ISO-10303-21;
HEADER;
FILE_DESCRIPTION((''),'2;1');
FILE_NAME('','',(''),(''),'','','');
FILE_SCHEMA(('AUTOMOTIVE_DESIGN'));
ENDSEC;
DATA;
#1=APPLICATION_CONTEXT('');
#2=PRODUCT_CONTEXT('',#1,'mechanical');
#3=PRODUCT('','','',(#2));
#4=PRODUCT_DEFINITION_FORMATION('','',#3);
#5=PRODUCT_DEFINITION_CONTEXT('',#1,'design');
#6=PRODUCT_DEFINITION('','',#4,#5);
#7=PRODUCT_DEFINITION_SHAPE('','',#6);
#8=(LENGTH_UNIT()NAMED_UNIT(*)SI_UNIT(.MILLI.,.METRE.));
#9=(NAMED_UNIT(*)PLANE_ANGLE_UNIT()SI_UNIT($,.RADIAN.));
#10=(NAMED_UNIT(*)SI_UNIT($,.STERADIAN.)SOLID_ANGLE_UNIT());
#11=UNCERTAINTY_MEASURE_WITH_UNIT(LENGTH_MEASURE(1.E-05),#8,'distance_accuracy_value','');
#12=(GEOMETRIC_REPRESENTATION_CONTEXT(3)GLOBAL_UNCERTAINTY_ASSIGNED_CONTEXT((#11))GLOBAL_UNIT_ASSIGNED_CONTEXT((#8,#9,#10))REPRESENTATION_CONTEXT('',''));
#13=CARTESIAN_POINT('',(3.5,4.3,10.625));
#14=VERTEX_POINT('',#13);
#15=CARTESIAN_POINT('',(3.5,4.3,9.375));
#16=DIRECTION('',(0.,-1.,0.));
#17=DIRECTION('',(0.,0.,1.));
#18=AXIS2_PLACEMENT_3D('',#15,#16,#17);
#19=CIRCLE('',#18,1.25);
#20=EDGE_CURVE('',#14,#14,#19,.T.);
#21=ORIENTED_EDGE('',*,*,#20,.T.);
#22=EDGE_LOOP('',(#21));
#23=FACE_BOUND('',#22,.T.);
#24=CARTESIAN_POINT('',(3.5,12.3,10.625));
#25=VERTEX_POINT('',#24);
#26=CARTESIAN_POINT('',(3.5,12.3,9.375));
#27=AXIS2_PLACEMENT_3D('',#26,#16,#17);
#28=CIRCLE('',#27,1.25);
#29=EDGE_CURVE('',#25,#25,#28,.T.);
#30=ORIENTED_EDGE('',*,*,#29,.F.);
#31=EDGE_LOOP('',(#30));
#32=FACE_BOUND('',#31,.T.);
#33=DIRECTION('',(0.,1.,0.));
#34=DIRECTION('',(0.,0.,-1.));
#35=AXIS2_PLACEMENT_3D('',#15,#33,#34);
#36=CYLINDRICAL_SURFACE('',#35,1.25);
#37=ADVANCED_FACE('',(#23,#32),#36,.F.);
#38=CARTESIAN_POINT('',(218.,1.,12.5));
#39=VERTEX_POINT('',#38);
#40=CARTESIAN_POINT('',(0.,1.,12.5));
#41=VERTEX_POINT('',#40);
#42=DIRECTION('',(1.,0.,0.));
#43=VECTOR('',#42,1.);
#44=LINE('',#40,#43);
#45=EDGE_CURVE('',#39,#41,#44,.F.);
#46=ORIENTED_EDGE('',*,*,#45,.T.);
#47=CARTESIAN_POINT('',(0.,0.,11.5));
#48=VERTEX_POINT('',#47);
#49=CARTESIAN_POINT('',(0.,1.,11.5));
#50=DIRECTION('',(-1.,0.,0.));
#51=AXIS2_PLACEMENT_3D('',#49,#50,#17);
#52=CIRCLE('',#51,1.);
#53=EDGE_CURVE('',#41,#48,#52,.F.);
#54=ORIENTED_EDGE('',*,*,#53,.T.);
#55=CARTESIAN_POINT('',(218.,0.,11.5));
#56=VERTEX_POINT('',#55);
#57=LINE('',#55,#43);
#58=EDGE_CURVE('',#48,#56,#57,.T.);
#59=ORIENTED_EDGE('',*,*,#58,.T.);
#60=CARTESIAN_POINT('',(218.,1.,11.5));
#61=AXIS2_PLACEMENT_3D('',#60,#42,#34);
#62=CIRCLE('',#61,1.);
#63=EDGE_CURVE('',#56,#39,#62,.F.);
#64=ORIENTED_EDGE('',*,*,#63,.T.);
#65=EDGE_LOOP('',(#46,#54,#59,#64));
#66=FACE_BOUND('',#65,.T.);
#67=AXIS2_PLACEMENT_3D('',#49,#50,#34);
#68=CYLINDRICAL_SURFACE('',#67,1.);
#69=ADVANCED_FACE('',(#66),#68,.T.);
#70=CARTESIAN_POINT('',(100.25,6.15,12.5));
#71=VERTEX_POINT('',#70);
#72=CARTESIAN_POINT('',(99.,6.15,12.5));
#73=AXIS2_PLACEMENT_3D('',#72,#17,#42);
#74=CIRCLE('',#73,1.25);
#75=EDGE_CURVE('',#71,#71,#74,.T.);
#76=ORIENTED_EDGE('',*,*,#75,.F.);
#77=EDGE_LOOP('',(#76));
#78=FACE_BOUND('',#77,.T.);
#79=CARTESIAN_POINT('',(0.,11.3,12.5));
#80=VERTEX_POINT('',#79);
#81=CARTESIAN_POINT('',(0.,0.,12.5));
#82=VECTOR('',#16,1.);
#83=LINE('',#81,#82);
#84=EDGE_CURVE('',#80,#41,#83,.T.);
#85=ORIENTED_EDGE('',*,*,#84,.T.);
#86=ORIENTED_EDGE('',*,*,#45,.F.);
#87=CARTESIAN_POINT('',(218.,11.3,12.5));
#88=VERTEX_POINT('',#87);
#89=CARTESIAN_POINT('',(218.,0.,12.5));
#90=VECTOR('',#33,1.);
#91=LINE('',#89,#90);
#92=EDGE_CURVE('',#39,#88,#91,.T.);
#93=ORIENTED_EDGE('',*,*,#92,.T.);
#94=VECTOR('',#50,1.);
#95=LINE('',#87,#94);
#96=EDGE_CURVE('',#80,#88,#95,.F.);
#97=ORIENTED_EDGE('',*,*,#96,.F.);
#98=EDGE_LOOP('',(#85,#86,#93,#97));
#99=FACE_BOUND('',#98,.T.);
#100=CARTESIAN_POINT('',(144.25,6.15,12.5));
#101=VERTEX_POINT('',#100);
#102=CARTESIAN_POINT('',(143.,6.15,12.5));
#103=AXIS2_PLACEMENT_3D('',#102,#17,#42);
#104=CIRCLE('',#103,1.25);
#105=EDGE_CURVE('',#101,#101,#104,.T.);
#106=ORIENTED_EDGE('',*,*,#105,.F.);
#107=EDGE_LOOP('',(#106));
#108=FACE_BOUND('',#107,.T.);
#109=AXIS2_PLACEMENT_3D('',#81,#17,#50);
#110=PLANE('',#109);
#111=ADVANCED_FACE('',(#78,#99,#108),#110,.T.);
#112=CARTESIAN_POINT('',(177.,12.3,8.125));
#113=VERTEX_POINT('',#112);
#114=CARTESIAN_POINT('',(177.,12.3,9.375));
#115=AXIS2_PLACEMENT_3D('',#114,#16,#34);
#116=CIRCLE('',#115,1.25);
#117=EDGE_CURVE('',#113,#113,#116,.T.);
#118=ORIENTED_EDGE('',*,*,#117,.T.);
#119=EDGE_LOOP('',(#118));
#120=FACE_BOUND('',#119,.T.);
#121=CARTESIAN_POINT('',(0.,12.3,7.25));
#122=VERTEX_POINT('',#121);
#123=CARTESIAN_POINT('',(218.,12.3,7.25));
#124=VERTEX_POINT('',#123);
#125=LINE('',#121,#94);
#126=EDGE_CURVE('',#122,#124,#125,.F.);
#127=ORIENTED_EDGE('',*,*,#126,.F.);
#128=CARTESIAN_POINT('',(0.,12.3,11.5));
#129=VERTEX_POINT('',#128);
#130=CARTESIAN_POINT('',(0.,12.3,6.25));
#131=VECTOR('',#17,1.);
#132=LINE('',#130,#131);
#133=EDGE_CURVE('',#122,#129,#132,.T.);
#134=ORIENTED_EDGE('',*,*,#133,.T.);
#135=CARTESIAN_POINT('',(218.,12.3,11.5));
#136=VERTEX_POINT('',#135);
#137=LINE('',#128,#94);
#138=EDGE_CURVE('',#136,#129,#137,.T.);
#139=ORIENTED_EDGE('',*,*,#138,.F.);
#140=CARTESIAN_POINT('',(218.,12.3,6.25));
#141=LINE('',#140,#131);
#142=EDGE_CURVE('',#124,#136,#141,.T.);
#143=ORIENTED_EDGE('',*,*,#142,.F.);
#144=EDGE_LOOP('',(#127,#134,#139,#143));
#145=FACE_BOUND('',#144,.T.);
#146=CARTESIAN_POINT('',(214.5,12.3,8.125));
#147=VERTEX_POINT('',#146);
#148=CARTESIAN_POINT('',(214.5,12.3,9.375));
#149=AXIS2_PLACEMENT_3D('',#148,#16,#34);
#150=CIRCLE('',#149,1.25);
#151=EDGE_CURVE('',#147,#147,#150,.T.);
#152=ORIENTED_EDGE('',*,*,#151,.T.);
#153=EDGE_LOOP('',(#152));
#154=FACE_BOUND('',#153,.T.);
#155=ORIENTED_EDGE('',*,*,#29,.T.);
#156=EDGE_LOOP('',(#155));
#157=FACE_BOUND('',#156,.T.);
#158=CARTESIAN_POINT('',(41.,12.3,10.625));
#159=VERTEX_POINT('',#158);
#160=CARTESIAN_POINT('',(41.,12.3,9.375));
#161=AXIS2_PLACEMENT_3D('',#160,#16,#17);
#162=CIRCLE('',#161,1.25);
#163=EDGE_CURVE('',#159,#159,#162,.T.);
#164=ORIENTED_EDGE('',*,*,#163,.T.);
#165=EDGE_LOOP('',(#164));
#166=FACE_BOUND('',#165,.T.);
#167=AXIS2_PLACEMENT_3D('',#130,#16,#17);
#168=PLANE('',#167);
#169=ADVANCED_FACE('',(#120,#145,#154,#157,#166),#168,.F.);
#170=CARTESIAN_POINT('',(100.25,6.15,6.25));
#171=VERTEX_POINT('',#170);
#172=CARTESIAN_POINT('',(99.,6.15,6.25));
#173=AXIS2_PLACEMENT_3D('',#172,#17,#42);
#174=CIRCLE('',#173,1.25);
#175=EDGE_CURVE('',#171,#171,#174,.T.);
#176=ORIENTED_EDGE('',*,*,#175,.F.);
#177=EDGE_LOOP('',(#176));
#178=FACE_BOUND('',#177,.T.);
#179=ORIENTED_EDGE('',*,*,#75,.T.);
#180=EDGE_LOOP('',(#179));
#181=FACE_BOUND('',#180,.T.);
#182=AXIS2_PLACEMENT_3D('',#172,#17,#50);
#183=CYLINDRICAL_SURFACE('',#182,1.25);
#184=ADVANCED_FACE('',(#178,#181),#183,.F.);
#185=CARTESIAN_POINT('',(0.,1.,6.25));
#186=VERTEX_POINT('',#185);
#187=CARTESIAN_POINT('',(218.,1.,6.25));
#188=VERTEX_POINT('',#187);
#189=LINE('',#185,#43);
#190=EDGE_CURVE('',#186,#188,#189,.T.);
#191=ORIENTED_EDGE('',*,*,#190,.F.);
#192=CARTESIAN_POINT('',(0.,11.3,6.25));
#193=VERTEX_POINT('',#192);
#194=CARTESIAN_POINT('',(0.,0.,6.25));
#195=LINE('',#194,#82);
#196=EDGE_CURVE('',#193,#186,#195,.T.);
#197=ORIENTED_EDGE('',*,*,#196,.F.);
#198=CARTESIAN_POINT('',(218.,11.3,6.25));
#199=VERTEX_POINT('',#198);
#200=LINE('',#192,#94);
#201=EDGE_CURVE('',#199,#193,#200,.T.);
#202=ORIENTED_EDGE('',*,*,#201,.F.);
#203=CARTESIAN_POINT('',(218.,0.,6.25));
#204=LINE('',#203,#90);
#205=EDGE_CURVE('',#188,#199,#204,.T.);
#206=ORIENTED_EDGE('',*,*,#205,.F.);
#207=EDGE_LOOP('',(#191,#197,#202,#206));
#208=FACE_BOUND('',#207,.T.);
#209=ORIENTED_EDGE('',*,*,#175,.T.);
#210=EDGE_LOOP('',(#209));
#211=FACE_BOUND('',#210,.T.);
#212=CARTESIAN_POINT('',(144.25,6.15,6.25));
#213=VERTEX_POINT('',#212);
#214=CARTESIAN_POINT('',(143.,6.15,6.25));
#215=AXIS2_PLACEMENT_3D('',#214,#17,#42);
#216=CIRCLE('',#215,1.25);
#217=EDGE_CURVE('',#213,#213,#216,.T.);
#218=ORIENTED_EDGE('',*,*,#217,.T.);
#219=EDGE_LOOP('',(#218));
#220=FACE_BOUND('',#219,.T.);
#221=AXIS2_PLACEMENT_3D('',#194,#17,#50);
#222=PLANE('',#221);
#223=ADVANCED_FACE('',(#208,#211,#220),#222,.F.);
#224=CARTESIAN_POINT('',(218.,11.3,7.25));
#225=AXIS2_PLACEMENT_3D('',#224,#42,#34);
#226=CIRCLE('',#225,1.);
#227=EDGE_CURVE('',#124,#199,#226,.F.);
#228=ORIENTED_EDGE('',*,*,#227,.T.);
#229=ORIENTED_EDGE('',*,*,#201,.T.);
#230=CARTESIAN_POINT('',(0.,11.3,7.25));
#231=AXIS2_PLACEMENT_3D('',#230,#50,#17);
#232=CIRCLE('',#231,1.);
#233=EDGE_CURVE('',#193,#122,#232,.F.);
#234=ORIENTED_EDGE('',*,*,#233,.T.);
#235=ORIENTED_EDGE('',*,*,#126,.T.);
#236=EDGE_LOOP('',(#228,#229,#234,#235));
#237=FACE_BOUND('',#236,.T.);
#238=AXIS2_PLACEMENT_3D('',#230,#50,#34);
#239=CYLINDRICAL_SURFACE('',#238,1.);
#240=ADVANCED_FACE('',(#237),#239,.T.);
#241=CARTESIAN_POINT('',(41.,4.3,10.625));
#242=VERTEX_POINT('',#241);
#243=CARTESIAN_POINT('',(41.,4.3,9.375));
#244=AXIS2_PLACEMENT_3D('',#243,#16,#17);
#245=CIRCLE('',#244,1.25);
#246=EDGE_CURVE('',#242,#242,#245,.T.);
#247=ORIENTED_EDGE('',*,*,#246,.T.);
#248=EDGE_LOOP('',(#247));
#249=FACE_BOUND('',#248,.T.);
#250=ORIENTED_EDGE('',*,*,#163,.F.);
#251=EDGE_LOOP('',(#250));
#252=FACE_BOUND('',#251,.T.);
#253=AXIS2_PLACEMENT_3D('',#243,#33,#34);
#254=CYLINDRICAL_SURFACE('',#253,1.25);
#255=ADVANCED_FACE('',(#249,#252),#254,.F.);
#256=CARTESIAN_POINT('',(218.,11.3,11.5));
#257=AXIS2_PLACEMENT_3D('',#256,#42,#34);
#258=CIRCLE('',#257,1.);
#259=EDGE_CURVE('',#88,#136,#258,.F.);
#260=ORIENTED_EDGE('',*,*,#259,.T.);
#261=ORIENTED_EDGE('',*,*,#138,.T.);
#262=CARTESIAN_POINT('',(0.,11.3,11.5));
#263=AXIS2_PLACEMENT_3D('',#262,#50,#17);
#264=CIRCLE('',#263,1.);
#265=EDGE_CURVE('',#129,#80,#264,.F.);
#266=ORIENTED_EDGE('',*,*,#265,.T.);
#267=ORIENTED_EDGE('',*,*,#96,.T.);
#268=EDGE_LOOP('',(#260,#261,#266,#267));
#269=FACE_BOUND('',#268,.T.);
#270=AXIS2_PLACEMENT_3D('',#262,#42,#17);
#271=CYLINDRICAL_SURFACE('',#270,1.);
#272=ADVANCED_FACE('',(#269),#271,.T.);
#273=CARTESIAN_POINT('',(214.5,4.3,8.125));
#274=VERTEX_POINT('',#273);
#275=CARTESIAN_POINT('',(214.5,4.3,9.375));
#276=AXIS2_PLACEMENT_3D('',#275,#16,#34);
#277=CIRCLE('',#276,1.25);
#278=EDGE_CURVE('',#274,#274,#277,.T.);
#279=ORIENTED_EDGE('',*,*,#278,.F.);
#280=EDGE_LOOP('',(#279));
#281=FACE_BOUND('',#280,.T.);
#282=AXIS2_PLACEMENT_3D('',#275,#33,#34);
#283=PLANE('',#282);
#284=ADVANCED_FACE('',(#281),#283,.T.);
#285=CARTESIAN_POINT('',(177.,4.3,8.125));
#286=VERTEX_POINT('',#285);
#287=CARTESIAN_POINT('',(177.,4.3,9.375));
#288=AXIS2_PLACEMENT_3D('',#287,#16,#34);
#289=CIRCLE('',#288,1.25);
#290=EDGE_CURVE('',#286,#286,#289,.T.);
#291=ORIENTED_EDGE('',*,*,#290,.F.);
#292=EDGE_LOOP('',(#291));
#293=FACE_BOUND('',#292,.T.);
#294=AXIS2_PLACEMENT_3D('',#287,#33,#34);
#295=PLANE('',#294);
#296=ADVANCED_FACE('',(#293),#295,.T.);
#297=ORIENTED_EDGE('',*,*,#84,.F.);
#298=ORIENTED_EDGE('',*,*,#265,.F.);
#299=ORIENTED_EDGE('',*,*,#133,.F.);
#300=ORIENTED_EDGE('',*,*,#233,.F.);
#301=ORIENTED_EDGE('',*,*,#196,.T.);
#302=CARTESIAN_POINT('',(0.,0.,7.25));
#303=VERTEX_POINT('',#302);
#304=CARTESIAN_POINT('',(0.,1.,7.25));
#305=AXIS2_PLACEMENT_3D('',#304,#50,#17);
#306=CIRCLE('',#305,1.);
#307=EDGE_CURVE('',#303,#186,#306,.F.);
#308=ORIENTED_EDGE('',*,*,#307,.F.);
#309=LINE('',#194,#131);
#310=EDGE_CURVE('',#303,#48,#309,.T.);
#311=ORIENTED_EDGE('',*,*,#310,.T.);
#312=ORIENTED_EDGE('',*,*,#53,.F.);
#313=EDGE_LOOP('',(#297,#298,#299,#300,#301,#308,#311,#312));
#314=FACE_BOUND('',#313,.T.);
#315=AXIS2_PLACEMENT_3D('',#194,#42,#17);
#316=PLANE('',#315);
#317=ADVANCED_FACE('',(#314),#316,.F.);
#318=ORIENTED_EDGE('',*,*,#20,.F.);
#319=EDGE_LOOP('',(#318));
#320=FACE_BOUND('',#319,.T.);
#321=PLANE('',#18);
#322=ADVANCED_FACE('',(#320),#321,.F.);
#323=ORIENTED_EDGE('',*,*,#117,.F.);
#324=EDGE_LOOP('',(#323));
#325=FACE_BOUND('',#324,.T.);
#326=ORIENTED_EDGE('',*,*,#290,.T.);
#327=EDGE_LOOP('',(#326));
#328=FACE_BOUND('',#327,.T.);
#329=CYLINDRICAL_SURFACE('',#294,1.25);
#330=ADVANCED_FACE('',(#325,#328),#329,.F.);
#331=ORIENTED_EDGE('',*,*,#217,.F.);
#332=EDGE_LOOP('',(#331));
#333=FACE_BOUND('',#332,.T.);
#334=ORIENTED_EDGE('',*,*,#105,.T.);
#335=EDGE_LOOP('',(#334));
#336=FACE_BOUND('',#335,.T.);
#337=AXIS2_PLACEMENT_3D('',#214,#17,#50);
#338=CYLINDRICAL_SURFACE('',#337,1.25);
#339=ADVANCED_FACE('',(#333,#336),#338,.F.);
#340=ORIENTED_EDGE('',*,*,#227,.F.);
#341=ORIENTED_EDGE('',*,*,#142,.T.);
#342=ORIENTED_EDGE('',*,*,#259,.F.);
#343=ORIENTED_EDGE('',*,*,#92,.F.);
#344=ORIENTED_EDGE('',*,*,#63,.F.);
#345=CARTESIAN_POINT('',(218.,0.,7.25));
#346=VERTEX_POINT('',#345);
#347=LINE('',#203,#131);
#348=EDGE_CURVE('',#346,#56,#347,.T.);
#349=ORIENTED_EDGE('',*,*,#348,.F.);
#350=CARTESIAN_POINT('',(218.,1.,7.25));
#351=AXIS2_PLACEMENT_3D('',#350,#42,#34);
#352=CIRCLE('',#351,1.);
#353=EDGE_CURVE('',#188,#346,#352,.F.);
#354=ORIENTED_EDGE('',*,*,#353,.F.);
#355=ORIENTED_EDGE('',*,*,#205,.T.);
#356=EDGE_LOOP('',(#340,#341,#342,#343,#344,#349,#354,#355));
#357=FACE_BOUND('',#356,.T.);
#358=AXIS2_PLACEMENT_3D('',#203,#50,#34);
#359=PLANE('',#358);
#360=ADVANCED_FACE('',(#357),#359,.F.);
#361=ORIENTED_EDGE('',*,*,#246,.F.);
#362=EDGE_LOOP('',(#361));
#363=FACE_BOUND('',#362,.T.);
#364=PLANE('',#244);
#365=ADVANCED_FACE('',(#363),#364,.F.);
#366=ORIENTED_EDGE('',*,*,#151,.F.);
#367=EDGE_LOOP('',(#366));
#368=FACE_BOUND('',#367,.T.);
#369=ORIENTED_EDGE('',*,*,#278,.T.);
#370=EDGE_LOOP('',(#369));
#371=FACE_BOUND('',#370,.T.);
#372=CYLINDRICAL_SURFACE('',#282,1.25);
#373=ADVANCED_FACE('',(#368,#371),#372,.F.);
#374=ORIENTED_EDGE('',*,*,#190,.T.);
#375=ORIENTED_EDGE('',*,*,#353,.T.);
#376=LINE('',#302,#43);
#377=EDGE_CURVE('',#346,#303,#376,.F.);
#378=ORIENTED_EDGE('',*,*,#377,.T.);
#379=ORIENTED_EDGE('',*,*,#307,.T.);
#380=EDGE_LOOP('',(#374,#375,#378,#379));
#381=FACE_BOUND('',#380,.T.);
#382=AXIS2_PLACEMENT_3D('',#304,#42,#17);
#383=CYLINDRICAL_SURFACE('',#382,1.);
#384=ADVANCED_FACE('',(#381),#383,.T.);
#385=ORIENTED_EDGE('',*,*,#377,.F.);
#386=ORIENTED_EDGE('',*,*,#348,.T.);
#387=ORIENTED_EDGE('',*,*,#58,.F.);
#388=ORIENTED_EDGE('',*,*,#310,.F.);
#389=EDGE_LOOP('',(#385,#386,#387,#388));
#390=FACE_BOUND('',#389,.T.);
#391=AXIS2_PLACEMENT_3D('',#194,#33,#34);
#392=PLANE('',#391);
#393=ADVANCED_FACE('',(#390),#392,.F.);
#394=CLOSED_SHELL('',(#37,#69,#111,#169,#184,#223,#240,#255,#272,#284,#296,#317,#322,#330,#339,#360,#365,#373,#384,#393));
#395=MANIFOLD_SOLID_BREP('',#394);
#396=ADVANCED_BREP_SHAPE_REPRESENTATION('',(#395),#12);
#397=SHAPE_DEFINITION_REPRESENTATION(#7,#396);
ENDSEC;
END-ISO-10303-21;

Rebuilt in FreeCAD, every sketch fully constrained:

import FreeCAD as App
import Part
import Sketcher
from FreeCAD import Vector


def edges_at(feature, points):
    """Names of the edges that pass closest to the given points."""
    edges = feature.Shape.Edges
    near = lambda p: min(range(len(edges)), key=lambda i: edges[i].distToShape(Part.Vertex(*p))[0])
    return sorted({f"Edge{near(p) + 1}" for p in points})

doc = App.newDocument("Part")
body = doc.addObject("PartDesign::Body", "Body")

# Sketch on XY plane
sketch1 = doc.addObject("Sketcher::SketchObject", "Sketch")
body.addObject(sketch1)
sketch1.AttachmentSupport = (doc.XY_Plane, [""])
sketch1.MapMode = "FlatFace"
sketch1.addGeometry([
    Part.LineSegment(Vector(0, 12.3, 0), Vector(0, 0, 0)),  # 0
    Part.LineSegment(Vector(0, 0, 0), Vector(218, 0, 0)),  # 1
    Part.LineSegment(Vector(218, 0, 0), Vector(218, 12.3, 0)),  # 2
    Part.LineSegment(Vector(218, 12.3, 0), Vector(0, 12.3, 0)),  # 3
    Part.Circle(Vector(99, 6.2, 0), Vector(0, 0, 1), 1.2),  # 4
    Part.Circle(Vector(143, 6.2, 0), Vector(0, 0, 1), 1.2),  # 5
], False)
sketch1.addConstraint([
    Sketcher.Constraint("Coincident", 0, 2, 1, 1),
    Sketcher.Constraint("Coincident", 1, 2, 2, 1),
    Sketcher.Constraint("Coincident", 2, 2, 3, 1),
    Sketcher.Constraint("Coincident", 3, 2, 0, 1),
    Sketcher.Constraint("Vertical", 0),
    Sketcher.Constraint("Horizontal", 1),
    Sketcher.Constraint("Vertical", 2),
    Sketcher.Constraint("Horizontal", 3),
    Sketcher.Constraint("Coincident", 0, 2, -1, 1),
    Sketcher.Constraint("Equal", 4, 5),
    Sketcher.Constraint("Horizontal", 4, 3, 5, 3),
    Sketcher.Constraint("Diameter", 4, 2.5),
    Sketcher.Constraint("DistanceX", 1, 1, 1, 2, 218.0),
    Sketcher.Constraint("DistanceY", 0, 2, 0, 1, 12.3),
    Sketcher.Constraint("DistanceX", -1, 1, 4, 3, 99.0),
    Sketcher.Constraint("DistanceX", -1, 1, 5, 3, 143.0),
    Sketcher.Constraint("DistanceY", -1, 1, 4, 3, 6.15),
])
pad1 = doc.addObject("PartDesign::Pad", "Pad")
body.addObject(pad1)
pad1.Profile = sketch1
pad1.Length = 6.25

# Sketch on XZ plane
sketch2 = doc.addObject("Sketcher::SketchObject", "Sketch001")
body.addObject(sketch2)
sketch2.AttachmentSupport = (doc.XZ_Plane, [""])
sketch2.MapMode = "FlatFace"
sketch2.AttachmentOffset = App.Placement(Vector(0, 0, -12.3), App.Rotation())
sketch2.addGeometry([
    Part.Circle(Vector(214.5, 3.1, 0), Vector(0, 0, 1), 1.2),
    Part.Circle(Vector(177, 3.1, 0), Vector(0, 0, 1), 1.2),
    Part.Circle(Vector(3.5, 3.1, 0), Vector(0, 0, 1), 1.2),
    Part.Circle(Vector(41, 3.1, 0), Vector(0, 0, 1), 1.2),
], False)
sketch2.addConstraint([
    Sketcher.Constraint("Equal", 0, 1),
    Sketcher.Constraint("Equal", 1, 2),
    Sketcher.Constraint("Equal", 2, 3),
    Sketcher.Constraint("Horizontal", 0, 3, 1, 3),
    Sketcher.Constraint("Horizontal", 1, 3, 2, 3),
    Sketcher.Constraint("Horizontal", 2, 3, 3, 3),
    Sketcher.Constraint("Diameter", 0, 2.5),
    Sketcher.Constraint("DistanceX", -1, 1, 1, 3, 177.0),
    Sketcher.Constraint("DistanceX", -1, 1, 3, 3, 41.0),
    Sketcher.Constraint("DistanceX", 2, 3, 0, 3, 211.0),
    Sketcher.Constraint("DistanceX", -1, 1, 0, 3, 214.5),
    Sketcher.Constraint("DistanceY", -1, 1, 0, 3, 3.125),
])
pocket1 = doc.addObject("PartDesign::Pocket", "Pocket")
body.addObject(pocket1)
pocket1.Profile = sketch2
pocket1.Length = 8
pocket1.Reversed = True
doc.recompute()

fillet = doc.addObject("PartDesign::Fillet", "Fillet")
body.addObject(fillet)
fillet.Base = (pocket1, edges_at(pocket1, [
    (109, 12.3, 6.25),
    (109, 12.3, 0),
    (109, 0, 0),
    (109, 0, 6.25),
]))
fillet.Radius = 1
body2 = doc.addObject("PartDesign::Body", "Body001")
doc.recompute()

body.Placement = App.Placement(Vector(0, 0, 6.25), App.Rotation(Vector(0, 0, 1), 0))
boolean = doc.addObject("PartDesign::Boolean", "Boolean")
body2.addObject(boolean)
boolean.Type = "Fuse"
boolean.addObjects([body])

doc.recompute()
